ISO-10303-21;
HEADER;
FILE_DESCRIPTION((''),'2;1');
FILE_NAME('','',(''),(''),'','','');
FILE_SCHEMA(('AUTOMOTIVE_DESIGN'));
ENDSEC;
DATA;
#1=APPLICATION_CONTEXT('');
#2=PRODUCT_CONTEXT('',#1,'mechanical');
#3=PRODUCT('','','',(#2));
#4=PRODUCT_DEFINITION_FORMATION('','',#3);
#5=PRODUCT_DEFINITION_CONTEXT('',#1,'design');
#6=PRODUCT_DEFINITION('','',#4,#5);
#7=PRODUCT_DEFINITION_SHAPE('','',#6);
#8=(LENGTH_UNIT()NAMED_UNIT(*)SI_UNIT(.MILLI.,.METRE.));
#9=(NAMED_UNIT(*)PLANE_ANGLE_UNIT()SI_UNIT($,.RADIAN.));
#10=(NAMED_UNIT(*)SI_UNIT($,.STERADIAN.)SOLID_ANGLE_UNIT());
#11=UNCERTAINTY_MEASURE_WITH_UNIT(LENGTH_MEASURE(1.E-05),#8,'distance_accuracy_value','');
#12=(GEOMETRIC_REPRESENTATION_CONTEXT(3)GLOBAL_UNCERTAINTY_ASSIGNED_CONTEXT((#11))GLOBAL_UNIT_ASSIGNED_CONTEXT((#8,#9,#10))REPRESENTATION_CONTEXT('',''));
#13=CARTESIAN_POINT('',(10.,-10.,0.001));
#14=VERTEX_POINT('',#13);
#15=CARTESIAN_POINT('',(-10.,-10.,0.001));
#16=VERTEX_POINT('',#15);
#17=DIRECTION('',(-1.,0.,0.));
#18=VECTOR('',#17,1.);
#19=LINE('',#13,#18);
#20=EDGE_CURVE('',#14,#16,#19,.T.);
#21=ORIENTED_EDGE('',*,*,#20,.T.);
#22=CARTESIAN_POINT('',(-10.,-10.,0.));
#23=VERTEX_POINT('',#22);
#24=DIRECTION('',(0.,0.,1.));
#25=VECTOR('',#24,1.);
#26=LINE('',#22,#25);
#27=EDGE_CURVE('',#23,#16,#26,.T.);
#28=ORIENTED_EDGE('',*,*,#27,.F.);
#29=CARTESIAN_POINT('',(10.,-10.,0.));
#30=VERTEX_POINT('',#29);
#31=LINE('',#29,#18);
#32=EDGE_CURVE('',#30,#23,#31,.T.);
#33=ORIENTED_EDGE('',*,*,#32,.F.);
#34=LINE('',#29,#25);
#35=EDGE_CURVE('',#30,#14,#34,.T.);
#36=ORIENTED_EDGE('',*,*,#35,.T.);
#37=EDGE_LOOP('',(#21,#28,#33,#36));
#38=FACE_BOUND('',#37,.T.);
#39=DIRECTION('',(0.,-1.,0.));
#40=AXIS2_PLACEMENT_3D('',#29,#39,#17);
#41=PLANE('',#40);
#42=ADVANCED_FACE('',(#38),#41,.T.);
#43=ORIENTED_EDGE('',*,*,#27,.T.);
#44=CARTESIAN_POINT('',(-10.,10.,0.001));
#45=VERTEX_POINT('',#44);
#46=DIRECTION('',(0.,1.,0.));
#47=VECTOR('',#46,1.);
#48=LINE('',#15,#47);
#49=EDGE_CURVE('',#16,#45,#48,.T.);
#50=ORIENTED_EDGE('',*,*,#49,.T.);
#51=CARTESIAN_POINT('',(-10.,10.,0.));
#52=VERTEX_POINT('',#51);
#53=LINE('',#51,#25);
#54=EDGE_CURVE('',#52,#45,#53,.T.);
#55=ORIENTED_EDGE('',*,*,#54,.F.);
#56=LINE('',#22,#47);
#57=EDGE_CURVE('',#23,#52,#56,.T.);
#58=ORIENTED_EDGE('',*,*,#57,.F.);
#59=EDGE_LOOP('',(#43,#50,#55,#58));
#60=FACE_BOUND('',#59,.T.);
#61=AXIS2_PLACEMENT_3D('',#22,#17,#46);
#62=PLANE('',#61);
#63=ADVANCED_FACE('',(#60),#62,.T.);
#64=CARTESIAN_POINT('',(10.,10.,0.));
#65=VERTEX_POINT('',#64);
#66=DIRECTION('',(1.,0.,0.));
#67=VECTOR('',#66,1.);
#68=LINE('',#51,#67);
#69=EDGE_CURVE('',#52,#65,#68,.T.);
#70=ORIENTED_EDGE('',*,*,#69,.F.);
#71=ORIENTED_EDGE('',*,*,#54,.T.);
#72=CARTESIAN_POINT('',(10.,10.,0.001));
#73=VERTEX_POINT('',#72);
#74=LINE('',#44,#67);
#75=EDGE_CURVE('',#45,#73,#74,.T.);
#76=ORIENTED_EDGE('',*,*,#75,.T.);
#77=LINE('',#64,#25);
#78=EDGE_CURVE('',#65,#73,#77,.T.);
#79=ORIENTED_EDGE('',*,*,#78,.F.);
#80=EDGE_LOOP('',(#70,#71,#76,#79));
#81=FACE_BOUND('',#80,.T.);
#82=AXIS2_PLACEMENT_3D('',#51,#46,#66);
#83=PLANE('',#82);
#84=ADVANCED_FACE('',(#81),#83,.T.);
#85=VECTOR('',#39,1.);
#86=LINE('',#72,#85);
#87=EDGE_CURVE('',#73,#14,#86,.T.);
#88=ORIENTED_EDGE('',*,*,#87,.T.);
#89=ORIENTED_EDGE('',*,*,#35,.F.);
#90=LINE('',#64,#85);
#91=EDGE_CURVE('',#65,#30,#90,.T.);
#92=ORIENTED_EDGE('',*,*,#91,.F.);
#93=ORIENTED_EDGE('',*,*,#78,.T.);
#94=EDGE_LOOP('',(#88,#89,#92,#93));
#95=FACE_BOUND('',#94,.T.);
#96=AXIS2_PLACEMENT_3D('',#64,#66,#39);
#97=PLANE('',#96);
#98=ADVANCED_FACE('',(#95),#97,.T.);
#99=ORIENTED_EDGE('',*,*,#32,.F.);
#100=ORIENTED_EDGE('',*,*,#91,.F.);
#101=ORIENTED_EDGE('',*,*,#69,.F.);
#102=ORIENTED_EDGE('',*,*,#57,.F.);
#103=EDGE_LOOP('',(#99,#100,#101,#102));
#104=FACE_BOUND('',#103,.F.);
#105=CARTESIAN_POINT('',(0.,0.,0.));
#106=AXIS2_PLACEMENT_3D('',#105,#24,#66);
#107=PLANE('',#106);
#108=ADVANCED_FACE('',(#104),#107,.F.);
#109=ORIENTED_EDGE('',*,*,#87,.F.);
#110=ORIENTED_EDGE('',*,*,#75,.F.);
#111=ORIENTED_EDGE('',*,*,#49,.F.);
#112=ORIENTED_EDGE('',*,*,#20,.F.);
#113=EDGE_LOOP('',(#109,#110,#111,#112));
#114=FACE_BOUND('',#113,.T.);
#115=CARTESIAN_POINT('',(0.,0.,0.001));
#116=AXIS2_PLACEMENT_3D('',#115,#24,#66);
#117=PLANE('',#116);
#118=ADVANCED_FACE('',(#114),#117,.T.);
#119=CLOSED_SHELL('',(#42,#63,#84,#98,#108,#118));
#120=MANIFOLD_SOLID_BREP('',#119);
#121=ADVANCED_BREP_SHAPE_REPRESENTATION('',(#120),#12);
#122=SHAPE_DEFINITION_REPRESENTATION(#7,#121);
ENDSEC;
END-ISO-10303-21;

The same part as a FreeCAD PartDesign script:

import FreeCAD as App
import Part
import Sketcher


def add_polygon(sketch, points):
    """Adds a closed chain of lines whose ends are joined by coincident constraints."""
    first, n = sketch.GeometryCount, len(points)
    for a, b in zip(points, points[1:] + points[:1]):
        sketch.addGeometry(Part.LineSegment(App.Vector(*a, 0), App.Vector(*b, 0)), False)
    for i in range(n):
        sketch.addConstraint(Sketcher.Constraint("Coincident", first + i, 2, first + (i + 1) % n, 1))

doc = App.newDocument("Part")
body = doc.addObject("PartDesign::Body", "Body")

# Sketch on XY plane
sketch1 = body.newObject("Sketcher::SketchObject", "Sketch")
sketch1.AttachmentSupport = (doc.getObject("XY_Plane"), [""])
sketch1.MapMode = "FlatFace"
add_polygon(sketch1, [(10, 10), (-10, 10), (-10, -10), (10, -10)])  # lines 0-3
sketch1.addConstraint([
    Sketcher.Constraint("Horizontal", 0),
    Sketcher.Constraint("Vertical", 1),
    Sketcher.Constraint("Horizontal", 2),
    Sketcher.Constraint("Vertical", 3),
    Sketcher.Constraint("Symmetric", 0, 2, 2, 2, -1, 1),
    Sketcher.Constraint("Equal", 2, 1),
    Sketcher.Constraint("DistanceX", 0, 2, 0, 1, 20.0),
])
pad1 = body.newObject("PartDesign::Pad", "Pad")
pad1.Profile = sketch1
pad1.Length = 0.001

doc.recompute()
